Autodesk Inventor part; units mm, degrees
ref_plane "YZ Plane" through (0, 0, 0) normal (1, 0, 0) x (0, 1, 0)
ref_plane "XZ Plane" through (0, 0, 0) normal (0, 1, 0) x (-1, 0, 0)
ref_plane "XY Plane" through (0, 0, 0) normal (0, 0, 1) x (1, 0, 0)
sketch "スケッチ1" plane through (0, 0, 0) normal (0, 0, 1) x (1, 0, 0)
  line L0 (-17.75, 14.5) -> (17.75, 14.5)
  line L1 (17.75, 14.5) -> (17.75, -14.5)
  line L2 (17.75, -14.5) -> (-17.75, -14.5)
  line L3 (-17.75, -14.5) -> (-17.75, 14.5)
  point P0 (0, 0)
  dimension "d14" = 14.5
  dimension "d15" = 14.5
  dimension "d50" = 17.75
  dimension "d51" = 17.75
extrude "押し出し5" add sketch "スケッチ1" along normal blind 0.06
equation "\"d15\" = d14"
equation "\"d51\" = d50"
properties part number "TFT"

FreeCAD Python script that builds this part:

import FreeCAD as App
import Part
import Sketcher

doc = App.newDocument("Part")
body = doc.addObject("PartDesign::Body", "Body")

# Sketch on XY plane
sketch1 = doc.addObject("Sketcher::SketchObject", "Sketch")
body.addObject(sketch1)
sketch1.AttachmentSupport = (doc.XY_Plane, [""])
sketch1.MapMode = "FlatFace"
sketch1.addGeometry([
    Part.LineSegment(App.Vector(17.75, 14.5, 0), App.Vector(-17.75, 14.5, 0)),
    Part.LineSegment(App.Vector(-17.75, 14.5, 0), App.Vector(-17.75, -14.5, 0)),
    Part.LineSegment(App.Vector(-17.75, -14.5, 0), App.Vector(17.75, -14.5, 0)),
    Part.LineSegment(App.Vector(17.75, -14.5, 0), App.Vector(17.75, 14.5, 0)),
], False)
sketch1.addConstraint([
    Sketcher.Constraint("Coincident", 0, 2, 1, 1),
    Sketcher.Constraint("Coincident", 1, 2, 2, 1),
    Sketcher.Constraint("Coincident", 2, 2, 3, 1),
    Sketcher.Constraint("Coincident", 3, 2, 0, 1),
    Sketcher.Constraint("Horizontal", 0),
    Sketcher.Constraint("Vertical", 1),
    Sketcher.Constraint("Horizontal", 2),
    Sketcher.Constraint("Vertical", 3),
    Sketcher.Constraint("Symmetric", 0, 2, 2, 2, -1, 1),
    Sketcher.Constraint("DistanceY", -1, 1, 0, 2, 14.5),
    Sketcher.Constraint("DistanceX", 0, 2, -1, 1, 17.75),
])
pad1 = doc.addObject("PartDesign::Pad", "Pad")
body.addObject(pad1)
pad1.Profile = sketch1
pad1.Length = 0.06

doc.recompute()
